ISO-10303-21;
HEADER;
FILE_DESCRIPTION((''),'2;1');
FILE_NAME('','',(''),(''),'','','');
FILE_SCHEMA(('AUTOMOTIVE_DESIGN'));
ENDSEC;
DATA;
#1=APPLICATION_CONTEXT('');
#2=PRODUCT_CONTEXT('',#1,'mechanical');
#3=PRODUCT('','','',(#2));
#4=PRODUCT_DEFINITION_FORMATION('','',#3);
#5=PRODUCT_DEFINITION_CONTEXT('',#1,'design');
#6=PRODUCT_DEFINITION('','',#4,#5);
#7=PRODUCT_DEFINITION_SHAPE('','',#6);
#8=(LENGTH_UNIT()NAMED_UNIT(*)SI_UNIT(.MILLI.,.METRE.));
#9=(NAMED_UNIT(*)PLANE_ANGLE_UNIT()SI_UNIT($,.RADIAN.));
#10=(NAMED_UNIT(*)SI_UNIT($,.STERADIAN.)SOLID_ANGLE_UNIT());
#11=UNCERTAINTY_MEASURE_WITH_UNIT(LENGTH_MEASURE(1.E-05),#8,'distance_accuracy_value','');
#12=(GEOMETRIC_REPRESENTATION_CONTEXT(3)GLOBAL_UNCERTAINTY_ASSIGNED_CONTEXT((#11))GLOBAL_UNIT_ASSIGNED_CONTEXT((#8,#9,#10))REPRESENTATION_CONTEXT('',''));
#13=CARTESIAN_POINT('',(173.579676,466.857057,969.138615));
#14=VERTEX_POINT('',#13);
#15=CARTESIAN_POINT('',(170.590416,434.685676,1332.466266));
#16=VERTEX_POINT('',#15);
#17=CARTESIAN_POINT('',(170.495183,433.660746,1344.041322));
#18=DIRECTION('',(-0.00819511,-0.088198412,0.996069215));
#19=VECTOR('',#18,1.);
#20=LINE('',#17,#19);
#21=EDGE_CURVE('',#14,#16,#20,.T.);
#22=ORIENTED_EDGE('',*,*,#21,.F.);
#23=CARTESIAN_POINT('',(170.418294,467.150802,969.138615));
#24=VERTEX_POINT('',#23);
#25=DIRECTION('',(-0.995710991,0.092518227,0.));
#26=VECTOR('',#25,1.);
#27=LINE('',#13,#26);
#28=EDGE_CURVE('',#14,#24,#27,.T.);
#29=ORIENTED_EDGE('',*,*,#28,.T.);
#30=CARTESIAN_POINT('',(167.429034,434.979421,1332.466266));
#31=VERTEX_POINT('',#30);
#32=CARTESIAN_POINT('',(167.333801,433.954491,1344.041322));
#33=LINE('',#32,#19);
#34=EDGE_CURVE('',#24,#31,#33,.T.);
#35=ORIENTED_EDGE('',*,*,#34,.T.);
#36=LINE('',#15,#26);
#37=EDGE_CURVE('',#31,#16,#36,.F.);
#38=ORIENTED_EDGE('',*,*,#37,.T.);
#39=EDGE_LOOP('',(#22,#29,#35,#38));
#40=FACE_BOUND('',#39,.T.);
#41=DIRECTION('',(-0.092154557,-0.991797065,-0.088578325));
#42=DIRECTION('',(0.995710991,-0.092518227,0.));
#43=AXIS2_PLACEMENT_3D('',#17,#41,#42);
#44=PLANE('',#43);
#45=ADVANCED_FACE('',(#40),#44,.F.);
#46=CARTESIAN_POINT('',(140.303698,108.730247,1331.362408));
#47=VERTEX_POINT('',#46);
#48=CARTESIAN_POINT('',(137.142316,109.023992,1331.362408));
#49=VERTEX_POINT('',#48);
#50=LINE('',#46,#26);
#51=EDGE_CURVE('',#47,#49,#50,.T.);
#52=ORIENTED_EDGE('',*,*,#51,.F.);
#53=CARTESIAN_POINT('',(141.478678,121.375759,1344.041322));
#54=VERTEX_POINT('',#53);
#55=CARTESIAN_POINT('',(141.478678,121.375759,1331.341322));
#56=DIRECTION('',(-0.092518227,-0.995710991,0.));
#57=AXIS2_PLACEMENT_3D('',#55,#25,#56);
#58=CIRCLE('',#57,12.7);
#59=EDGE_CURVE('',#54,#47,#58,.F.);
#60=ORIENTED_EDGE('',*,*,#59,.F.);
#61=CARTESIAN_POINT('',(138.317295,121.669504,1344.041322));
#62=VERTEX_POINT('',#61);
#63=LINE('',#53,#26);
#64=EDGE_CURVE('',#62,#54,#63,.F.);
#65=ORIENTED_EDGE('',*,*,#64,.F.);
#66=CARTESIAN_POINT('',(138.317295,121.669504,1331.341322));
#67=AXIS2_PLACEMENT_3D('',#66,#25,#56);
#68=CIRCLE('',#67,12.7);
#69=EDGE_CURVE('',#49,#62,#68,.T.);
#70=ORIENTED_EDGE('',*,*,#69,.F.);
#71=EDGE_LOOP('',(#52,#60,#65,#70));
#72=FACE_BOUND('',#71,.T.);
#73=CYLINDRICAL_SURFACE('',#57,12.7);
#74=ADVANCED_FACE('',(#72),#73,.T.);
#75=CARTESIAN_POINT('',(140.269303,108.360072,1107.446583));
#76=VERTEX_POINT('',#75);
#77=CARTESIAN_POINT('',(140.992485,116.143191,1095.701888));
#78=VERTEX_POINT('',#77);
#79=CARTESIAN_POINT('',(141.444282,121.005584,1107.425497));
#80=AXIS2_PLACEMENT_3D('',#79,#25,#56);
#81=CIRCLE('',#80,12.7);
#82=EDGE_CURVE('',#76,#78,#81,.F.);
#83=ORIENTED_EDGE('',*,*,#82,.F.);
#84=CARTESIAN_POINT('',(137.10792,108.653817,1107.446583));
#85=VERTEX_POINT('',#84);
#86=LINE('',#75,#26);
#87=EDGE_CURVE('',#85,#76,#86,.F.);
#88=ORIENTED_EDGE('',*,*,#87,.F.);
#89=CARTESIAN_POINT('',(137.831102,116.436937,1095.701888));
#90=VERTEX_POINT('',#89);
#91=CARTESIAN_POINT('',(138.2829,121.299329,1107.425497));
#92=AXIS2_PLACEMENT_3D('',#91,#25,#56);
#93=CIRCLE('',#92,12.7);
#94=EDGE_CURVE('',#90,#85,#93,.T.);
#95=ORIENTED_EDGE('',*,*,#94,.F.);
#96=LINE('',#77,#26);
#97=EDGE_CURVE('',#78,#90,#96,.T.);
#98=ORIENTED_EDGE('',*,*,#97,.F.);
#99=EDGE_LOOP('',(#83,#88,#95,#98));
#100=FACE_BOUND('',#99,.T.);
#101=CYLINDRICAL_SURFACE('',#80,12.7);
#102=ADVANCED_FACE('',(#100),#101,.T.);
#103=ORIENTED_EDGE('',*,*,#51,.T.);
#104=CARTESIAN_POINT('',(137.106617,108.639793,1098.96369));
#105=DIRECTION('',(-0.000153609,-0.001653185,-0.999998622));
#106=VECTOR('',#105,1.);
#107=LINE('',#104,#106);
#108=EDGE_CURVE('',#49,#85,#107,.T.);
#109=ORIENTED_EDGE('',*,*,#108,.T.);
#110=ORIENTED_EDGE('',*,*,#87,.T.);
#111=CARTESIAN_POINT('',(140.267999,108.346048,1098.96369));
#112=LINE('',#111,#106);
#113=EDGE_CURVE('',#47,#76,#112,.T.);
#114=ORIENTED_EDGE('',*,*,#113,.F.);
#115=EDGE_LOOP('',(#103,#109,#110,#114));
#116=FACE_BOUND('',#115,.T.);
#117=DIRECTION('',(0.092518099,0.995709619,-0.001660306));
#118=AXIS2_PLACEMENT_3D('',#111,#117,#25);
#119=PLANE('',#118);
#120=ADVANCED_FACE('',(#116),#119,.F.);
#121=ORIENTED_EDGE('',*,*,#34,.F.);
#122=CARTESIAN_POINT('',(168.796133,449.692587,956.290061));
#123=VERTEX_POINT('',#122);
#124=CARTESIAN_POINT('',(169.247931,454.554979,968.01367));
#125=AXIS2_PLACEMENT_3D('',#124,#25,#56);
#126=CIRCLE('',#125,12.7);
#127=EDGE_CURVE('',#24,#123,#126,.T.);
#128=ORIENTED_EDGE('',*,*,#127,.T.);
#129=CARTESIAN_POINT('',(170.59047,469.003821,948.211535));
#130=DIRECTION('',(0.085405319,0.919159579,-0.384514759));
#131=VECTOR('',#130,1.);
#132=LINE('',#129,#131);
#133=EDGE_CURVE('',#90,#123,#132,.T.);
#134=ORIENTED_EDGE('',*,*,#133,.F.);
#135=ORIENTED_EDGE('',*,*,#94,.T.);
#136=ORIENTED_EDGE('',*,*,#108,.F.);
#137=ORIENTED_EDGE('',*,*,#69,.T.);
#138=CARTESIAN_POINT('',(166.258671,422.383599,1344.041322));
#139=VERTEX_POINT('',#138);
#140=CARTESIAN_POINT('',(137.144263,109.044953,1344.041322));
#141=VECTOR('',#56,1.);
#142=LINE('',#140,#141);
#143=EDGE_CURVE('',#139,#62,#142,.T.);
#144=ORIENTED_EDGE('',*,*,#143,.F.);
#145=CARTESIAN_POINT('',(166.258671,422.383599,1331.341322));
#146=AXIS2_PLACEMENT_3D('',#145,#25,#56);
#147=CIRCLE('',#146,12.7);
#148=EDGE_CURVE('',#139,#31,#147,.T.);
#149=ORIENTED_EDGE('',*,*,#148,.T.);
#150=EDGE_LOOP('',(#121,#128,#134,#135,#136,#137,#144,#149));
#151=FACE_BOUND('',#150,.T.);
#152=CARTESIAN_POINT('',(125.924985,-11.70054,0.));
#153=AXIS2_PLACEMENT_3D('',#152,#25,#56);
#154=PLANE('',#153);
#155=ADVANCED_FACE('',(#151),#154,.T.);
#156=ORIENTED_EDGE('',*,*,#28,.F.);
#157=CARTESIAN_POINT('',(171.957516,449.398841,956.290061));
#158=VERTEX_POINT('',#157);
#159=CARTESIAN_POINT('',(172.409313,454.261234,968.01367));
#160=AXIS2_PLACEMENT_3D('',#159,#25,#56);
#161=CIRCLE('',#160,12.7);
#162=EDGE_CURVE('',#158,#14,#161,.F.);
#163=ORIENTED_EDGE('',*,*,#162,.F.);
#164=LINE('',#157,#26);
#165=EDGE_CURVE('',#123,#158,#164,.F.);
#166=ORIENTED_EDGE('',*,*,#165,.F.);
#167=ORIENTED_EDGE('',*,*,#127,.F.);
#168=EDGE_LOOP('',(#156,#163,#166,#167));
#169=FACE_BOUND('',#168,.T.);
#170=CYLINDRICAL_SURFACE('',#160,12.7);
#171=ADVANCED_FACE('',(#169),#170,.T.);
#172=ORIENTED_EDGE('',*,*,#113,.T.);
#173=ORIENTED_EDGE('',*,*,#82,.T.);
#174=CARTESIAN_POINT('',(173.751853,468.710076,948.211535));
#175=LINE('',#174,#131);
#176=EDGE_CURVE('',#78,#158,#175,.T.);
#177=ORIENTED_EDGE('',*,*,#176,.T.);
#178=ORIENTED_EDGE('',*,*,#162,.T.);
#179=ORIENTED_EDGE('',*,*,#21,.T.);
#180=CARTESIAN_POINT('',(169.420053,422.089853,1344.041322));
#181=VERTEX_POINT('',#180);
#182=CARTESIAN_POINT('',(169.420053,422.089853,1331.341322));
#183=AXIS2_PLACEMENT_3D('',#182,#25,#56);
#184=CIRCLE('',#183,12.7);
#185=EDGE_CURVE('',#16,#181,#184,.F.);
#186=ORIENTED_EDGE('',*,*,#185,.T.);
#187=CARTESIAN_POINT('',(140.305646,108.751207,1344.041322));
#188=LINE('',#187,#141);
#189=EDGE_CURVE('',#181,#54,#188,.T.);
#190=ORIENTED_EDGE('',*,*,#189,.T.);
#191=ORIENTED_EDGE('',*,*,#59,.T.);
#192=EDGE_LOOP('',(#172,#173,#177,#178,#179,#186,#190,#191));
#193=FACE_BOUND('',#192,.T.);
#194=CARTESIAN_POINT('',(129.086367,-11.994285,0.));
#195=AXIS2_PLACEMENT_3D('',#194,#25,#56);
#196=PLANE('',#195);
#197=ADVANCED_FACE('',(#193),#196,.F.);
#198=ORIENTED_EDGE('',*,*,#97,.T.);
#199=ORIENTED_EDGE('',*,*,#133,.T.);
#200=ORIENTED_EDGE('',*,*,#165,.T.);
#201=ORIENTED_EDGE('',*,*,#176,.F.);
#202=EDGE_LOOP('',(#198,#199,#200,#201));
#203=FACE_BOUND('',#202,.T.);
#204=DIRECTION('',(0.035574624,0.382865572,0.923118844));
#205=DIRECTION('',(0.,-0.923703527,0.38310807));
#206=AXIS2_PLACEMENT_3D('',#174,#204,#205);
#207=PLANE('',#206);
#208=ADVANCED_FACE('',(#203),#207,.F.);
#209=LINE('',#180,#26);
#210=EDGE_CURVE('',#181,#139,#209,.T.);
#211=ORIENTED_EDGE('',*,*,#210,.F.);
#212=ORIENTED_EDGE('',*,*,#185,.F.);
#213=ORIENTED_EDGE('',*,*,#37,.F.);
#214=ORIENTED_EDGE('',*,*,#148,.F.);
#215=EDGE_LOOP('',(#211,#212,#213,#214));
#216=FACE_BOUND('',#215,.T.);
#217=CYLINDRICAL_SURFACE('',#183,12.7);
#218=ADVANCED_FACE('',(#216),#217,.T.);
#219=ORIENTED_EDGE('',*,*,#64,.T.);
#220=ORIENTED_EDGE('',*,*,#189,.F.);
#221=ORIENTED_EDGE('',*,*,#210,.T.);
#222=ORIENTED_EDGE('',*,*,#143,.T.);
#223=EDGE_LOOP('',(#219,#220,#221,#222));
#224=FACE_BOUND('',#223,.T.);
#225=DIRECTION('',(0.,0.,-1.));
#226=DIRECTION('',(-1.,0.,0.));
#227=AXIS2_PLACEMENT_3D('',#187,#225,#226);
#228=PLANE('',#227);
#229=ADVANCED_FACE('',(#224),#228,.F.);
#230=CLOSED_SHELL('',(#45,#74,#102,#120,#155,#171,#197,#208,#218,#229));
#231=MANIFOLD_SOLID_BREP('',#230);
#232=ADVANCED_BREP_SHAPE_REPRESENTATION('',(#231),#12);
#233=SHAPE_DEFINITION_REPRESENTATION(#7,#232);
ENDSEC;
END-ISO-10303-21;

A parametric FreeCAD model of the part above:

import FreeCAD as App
import Part
import Sketcher

V = App.Vector
Q = App.Units.Quantity


def edges_at(feature, points):
    """Names of the edges that pass closest to the given points."""
    edges = feature.Shape.Edges
    near = lambda p: min(range(len(edges)), key=lambda i: edges[i].distToShape(Part.Vertex(*p))[0])
    return sorted({f"Edge{near(p) + 1}" for p in points})

doc = App.newDocument("Part")
body = doc.addObject("PartDesign::Body", "Body")

# Sketch on an angled plane
sketch1 = doc.addObject("Sketcher::SketchObject", "Sketch")
body.addObject(sketch1)
sketch1.Placement = App.Placement(V(125.924985, -11.70054, 0), App.Rotation(V(0, 0, -1), V(0.092518227, 0.995710991, 0), V(0.995710991, -0.092518227, 0), "ZXY"))
sketch1.addGeometry([
    Part.LineSegment(V(-1344, 121, 0), V(-1099, 121, 0)),
    Part.LineSegment(V(-1099, 121, 0), V(-948, 483, 0)),
    Part.LineSegment(V(-948, 483, 0), V(-1344, 448, 0)),
    Part.LineSegment(V(-1344, 448, 0), V(-1344, 121, 0)),
], False)
sketch1.addConstraint([
    Sketcher.Constraint("Coincident", 0, 2, 1, 1),
    Sketcher.Constraint("Coincident", 1, 2, 2, 1),
    Sketcher.Constraint("Coincident", 2, 2, 3, 1),
    Sketcher.Constraint("Coincident", 3, 2, 0, 1),
    Sketcher.Constraint("Vertical", 3),
    Sketcher.Constraint("DistanceY", 3, 2, 3, 1, 326.309081),
    Sketcher.Constraint("DistanceY", -1, 1, 3, 2, 121.265602),
    Sketcher.Constraint("Distance", 0, 245.07797),
    Sketcher.Constraint("Distance", 2, 397.391849),
    Sketcher.Constraint("DistanceX", 0, 2, -1, 1, 1098.96369),
    Sketcher.Constraint("DistanceY", 0, 2, 1, 2, 361.91629),
    Sketcher.Constraint("Distance", 1, 392.058176),
])
pad1 = doc.addObject("PartDesign::Pad", "Pad")
body.addObject(pad1)
pad1.Profile = sketch1
pad1.Length = Q("0.125 in")
doc.recompute()

fillet = doc.addObject("PartDesign::Fillet", "Fillet")
body.addObject(fillet)
fillet.Base = (pad1, edges_at(pad1, [
    (138.687, 108.493, 1098.964),
    (138.725, 108.898, 1344.041),
    (168.914, 433.808, 1344.041),
    (172.171, 468.857, 948.212),
]))
fillet.Radius = Q("0.5 in")

doc.recompute()
